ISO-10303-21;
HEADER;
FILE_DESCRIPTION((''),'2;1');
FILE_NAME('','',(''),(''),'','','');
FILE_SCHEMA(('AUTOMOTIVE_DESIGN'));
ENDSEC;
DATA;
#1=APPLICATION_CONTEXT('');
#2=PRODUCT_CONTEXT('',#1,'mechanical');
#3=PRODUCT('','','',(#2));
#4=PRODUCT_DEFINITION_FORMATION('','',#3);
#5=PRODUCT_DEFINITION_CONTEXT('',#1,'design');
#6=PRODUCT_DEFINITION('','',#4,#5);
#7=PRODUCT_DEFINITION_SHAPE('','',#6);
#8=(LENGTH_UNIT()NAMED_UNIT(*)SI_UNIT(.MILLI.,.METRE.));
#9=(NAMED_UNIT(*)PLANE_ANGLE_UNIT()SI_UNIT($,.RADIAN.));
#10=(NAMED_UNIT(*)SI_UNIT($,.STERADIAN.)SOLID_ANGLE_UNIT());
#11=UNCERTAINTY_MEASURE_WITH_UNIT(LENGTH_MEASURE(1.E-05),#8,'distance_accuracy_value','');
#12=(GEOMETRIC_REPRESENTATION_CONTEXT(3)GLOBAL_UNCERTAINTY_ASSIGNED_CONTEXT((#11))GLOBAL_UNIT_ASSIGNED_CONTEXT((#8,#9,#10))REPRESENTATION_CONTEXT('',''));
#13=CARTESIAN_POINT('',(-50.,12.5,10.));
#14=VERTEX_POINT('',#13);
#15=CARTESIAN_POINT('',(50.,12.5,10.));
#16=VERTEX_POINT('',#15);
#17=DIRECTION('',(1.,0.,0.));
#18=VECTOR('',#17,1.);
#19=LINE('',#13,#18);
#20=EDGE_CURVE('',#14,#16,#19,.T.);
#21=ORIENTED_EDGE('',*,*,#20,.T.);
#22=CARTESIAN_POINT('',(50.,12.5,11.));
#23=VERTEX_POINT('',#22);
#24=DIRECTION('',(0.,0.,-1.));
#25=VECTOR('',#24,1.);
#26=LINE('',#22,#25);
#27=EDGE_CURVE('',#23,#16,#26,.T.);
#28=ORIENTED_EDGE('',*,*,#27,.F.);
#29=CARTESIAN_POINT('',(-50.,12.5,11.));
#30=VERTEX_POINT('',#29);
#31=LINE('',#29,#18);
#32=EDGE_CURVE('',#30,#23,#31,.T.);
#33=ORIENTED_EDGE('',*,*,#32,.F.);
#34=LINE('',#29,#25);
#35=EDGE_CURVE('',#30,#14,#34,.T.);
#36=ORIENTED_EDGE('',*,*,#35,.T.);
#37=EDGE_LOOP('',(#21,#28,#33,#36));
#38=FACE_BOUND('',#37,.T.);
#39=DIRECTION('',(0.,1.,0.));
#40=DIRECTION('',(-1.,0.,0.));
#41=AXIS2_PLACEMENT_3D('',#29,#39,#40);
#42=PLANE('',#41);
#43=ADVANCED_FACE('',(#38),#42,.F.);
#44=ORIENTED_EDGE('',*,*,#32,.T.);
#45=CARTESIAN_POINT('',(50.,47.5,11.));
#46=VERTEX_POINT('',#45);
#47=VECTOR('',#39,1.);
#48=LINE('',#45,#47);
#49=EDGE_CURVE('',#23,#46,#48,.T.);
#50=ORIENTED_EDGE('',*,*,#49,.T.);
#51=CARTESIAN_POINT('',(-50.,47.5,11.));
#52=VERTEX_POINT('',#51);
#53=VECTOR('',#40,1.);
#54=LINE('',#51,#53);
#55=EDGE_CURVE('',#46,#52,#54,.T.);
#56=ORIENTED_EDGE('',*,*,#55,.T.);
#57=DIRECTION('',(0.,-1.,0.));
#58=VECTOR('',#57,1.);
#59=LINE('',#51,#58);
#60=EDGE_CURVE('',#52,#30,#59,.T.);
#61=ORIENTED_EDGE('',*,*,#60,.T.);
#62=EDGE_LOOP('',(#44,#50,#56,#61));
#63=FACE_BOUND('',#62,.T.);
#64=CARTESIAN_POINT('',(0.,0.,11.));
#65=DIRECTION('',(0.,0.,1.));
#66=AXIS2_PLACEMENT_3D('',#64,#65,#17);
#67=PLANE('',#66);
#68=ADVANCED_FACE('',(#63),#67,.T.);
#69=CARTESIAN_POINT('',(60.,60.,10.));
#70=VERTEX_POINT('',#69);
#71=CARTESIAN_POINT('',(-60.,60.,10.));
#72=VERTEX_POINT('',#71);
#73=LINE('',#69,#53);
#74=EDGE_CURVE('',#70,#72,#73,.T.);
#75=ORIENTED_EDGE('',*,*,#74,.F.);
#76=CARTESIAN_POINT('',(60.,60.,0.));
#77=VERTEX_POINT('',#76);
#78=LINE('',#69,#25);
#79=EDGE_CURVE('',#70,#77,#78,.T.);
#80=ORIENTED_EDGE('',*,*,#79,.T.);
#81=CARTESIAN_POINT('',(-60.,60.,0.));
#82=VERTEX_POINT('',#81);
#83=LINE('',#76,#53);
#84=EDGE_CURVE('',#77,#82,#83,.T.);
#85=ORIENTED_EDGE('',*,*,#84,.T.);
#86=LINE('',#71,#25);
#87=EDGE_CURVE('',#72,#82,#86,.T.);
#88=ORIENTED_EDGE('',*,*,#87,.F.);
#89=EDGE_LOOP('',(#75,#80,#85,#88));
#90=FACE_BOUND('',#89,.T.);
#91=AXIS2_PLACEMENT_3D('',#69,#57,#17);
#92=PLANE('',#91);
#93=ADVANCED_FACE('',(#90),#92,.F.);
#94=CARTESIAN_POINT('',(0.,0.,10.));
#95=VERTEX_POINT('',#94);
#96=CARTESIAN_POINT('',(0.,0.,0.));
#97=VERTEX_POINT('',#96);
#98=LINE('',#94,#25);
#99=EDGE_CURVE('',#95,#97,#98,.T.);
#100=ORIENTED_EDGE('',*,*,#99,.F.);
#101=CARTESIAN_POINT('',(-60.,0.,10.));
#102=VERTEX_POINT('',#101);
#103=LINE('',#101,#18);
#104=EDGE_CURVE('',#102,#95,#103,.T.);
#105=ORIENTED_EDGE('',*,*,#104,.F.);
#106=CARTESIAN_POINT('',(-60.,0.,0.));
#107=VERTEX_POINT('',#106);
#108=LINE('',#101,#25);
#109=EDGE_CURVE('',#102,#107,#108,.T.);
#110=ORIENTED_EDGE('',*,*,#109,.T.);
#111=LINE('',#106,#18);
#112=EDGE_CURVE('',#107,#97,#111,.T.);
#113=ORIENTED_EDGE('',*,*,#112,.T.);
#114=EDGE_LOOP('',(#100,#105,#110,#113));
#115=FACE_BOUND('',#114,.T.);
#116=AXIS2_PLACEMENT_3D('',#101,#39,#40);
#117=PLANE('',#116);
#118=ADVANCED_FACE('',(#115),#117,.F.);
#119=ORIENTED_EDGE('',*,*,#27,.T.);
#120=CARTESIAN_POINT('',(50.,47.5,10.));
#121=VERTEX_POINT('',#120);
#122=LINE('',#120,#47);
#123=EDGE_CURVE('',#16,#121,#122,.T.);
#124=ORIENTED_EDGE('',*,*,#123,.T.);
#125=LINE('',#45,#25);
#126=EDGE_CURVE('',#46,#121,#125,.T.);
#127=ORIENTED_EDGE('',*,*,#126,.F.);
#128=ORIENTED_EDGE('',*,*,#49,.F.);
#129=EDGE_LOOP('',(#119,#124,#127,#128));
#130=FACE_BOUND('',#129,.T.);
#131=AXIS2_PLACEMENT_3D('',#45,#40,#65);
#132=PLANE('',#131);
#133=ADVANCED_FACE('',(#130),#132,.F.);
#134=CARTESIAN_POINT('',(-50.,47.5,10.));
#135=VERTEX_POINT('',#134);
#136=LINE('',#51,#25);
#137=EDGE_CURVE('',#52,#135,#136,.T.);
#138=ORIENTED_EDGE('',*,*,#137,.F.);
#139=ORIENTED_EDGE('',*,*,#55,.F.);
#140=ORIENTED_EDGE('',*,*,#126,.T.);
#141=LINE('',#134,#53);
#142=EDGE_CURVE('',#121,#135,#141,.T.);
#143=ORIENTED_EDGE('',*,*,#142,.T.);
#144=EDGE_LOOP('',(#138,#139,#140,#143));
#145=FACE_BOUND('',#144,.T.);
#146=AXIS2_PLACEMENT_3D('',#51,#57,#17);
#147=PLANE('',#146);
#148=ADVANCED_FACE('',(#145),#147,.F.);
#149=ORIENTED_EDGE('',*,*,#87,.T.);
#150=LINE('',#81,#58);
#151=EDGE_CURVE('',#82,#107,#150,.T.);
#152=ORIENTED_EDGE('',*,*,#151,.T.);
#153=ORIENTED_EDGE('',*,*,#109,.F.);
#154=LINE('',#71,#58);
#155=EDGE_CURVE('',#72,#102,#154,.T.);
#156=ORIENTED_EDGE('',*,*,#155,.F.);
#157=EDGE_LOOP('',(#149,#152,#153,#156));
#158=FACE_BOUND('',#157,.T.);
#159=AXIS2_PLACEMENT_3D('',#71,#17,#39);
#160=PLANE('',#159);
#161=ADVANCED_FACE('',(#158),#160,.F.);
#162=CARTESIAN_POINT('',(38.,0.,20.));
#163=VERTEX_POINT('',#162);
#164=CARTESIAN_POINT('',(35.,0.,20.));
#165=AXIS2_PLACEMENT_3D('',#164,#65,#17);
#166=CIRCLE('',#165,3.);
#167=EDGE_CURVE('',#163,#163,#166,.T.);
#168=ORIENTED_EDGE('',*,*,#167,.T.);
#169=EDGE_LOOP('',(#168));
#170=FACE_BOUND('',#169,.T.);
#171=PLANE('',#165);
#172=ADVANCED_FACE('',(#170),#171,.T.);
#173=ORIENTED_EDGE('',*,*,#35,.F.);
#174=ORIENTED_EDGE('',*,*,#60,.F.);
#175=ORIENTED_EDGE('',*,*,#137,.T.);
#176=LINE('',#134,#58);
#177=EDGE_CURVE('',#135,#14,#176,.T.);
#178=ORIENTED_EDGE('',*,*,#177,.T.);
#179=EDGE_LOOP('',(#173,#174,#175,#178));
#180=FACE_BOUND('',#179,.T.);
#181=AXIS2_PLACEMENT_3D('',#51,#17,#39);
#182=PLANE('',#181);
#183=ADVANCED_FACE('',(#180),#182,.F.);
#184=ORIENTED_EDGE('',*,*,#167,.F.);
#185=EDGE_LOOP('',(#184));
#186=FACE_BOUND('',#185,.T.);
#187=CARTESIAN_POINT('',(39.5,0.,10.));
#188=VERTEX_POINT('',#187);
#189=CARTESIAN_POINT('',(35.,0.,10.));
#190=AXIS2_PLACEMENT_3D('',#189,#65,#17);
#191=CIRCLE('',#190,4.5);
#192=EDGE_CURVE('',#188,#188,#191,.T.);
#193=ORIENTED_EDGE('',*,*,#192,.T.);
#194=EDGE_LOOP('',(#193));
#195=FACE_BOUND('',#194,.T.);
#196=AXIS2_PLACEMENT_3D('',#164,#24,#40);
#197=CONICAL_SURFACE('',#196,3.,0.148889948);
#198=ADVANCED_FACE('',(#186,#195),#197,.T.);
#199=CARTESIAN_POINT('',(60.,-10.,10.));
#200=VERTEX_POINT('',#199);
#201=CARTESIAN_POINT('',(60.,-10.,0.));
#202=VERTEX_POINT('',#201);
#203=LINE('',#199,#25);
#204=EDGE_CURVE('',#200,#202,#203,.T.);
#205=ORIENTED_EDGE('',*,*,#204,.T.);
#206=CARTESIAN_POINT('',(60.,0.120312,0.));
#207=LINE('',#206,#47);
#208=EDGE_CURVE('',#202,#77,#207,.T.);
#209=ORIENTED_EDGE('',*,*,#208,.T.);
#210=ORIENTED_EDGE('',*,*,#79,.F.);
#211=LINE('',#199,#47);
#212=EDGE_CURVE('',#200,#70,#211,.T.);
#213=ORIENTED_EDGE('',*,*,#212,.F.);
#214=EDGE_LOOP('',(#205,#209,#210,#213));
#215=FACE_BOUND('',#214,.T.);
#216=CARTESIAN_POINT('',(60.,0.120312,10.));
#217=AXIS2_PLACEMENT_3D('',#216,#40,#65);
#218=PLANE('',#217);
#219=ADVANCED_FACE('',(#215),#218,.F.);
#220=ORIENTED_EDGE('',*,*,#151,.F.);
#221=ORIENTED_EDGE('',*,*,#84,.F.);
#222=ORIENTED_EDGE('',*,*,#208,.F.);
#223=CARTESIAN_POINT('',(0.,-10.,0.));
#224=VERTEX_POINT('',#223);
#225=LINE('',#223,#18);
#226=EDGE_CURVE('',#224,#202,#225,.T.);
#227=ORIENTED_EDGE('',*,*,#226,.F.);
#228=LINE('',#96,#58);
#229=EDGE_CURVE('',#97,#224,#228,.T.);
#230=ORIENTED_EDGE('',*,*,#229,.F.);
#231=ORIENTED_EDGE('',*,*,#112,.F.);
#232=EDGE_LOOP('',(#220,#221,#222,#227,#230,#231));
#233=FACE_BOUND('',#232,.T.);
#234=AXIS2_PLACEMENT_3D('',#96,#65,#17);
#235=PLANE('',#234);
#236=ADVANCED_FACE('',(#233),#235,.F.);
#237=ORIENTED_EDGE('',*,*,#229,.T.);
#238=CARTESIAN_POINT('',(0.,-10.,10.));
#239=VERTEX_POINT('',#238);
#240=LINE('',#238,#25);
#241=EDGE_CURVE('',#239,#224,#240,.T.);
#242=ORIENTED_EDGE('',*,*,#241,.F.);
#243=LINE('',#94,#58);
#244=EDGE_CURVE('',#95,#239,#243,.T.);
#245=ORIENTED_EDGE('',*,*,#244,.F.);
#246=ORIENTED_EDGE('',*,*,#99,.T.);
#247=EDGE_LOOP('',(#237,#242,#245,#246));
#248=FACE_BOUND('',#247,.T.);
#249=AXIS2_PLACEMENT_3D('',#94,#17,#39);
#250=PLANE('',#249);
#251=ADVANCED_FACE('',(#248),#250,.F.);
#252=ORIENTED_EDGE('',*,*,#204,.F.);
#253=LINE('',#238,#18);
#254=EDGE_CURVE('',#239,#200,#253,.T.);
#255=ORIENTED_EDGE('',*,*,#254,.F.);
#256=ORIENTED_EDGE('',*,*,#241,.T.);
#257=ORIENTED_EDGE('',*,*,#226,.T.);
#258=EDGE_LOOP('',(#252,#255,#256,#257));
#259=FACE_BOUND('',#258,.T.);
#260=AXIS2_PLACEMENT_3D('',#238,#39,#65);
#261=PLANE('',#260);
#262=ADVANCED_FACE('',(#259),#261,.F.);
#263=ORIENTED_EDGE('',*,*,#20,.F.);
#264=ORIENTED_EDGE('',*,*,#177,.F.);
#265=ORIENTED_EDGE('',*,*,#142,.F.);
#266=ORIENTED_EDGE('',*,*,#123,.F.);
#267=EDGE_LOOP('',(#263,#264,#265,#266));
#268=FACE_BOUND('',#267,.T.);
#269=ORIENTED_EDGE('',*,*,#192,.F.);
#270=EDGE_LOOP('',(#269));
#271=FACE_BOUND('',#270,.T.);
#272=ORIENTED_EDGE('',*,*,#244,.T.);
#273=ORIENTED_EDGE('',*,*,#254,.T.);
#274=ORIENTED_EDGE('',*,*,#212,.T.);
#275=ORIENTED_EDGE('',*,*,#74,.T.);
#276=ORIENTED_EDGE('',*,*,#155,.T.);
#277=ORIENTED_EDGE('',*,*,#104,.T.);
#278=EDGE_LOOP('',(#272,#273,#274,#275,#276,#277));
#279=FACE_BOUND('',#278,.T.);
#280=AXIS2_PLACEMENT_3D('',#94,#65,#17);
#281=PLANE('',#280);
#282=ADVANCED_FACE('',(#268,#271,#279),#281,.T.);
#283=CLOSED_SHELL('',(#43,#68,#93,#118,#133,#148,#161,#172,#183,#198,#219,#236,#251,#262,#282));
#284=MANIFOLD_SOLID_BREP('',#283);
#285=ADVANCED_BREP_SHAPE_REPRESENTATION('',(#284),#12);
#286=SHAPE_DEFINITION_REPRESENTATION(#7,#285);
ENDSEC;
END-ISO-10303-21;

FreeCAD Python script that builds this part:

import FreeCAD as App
import Part
import Sketcher

V = App.Vector

doc = App.newDocument("Part")
body = doc.addObject("PartDesign::Body", "Body")

# Sketch on XY plane
sketch1 = body.newObject("Sketcher::SketchObject", "Sketch")
sketch1.AttachmentSupport = (doc.getObject("XY_Plane"), [""])
sketch1.MapMode = "FlatFace"
sketch1.addGeometry([
    Part.LineSegment(V(-60, 60, 0), V(-60, 0, 0)),  # 0
    Part.LineSegment(V(-60, 0, 0), V(0, 0, 0)),  # 1
    Part.LineSegment(V(0, 0, 0), V(0, -10, 0)),  # 2
    Part.LineSegment(V(0, -10, 0), V(60, -10, 0)),  # 3
    Part.LineSegment(V(60, -10, 0), V(60, 60, 0)),  # 4
    Part.LineSegment(V(60, 60, 0), V(-60, 60, 0)),  # 5
], False)
sketch1.addConstraint([
    Sketcher.Constraint("Coincident", 0, 2, 1, 1),
    Sketcher.Constraint("Coincident", 1, 2, 2, 1),
    Sketcher.Constraint("Coincident", 2, 2, 3, 1),
    Sketcher.Constraint("Coincident", 3, 2, 4, 1),
    Sketcher.Constraint("Coincident", 4, 2, 5, 1),
    Sketcher.Constraint("Coincident", 5, 2, 0, 1),
    Sketcher.Constraint("Vertical", 0),
    Sketcher.Constraint("Horizontal", 1),
    Sketcher.Constraint("Vertical", 2),
    Sketcher.Constraint("Horizontal", 3),
    Sketcher.Constraint("Vertical", 4),
    Sketcher.Constraint("Horizontal", 5),
    Sketcher.Constraint("Coincident", 1, 2, -1, 1),
    Sketcher.Constraint("Equal", 1, 3),
    Sketcher.Constraint("Equal", 3, 0),
    Sketcher.Constraint("DistanceX", 1, 1, 1, 2, 60.0),
    Sketcher.Constraint("DistanceY", 2, 2, 2, 1, 10.0),
])
pad1 = body.newObject("PartDesign::Pad", "Pad")
pad1.Profile = sketch1
pad1.Length = 10

# Sketch on XY plane
sketch2 = body.newObject("Sketcher::SketchObject", "Sketch001")
sketch2.AttachmentSupport = (doc.getObject("XY_Plane"), [""])
sketch2.MapMode = "FlatFace"
sketch2.AttachmentOffset = App.Placement(V(0, 0, 10), App.Rotation())
sketch2.addGeometry([
    Part.LineSegment(V(-50, 48, 0), V(-50, 12, 0)),
    Part.LineSegment(V(-50, 12, 0), V(50, 12, 0)),
    Part.LineSegment(V(50, 12, 0), V(50, 48, 0)),
    Part.LineSegment(V(50, 48, 0), V(-50, 48, 0)),
], False)
sketch2.addConstraint([
    Sketcher.Constraint("Coincident", 0, 2, 1, 1),
    Sketcher.Constraint("Coincident", 1, 2, 2, 1),
    Sketcher.Constraint("Coincident", 2, 2, 3, 1),
    Sketcher.Constraint("Coincident", 3, 2, 0, 1),
    Sketcher.Constraint("Vertical", 0),
    Sketcher.Constraint("Horizontal", 1),
    Sketcher.Constraint("Vertical", 2),
    Sketcher.Constraint("Horizontal", 3),
    Sketcher.Constraint("DistanceX", 1, 1, 1, 2, 100.0),
    Sketcher.Constraint("DistanceY", 0, 2, 0, 1, 35.0),
    Sketcher.Constraint("DistanceX", 0, 2, -1, 1, 50.0),
    Sketcher.Constraint("DistanceY", -1, 1, 0, 2, 12.5),
])
pad2 = body.newObject("PartDesign::Pad", "Pad001")
pad2.Profile = sketch2
pad2.Length = 1

# Sketch on XY plane
sketch3 = body.newObject("Sketcher::SketchObject", "Sketch002")
sketch3.AttachmentSupport = (doc.getObject("XY_Plane"), [""])
sketch3.MapMode = "FlatFace"
sketch3.AttachmentOffset = App.Placement(V(0, 0, 10), App.Rotation())
sketch3.addGeometry(Part.Circle(V(35, 0, 0), V(0, 0, 1), 4.5), False)
sketch3.addConstraint([
    Sketcher.Constraint("PointOnObject", 0, 3, -1),
    Sketcher.Constraint("Diameter", 0, 9.0),
    Sketcher.Constraint("DistanceX", -1, 1, 0, 3, 35.0),
])

# Sketch on XY plane
sketch4 = body.newObject("Sketcher::SketchObject", "Sketch003")
sketch4.AttachmentSupport = (doc.getObject("XY_Plane"), [""])
sketch4.MapMode = "FlatFace"
sketch4.AttachmentOffset = App.Placement(V(0, 0, 20), App.Rotation())
sketch4.addGeometry(Part.Circle(V(35, 0, 0), V(0, 0, 1), 3), False)
sketch4.addConstraint([
    Sketcher.Constraint("PointOnObject", 0, 3, -1),
    Sketcher.Constraint("Diameter", 0, 6.0),
    Sketcher.Constraint("DistanceX", -1, 1, 0, 3, 35.0),
])

additiveloft = body.newObject("PartDesign::AdditiveLoft", "AdditiveLoft")
additiveloft.Profile = sketch3
additiveloft.Sections = [sketch4]

doc.recompute()
